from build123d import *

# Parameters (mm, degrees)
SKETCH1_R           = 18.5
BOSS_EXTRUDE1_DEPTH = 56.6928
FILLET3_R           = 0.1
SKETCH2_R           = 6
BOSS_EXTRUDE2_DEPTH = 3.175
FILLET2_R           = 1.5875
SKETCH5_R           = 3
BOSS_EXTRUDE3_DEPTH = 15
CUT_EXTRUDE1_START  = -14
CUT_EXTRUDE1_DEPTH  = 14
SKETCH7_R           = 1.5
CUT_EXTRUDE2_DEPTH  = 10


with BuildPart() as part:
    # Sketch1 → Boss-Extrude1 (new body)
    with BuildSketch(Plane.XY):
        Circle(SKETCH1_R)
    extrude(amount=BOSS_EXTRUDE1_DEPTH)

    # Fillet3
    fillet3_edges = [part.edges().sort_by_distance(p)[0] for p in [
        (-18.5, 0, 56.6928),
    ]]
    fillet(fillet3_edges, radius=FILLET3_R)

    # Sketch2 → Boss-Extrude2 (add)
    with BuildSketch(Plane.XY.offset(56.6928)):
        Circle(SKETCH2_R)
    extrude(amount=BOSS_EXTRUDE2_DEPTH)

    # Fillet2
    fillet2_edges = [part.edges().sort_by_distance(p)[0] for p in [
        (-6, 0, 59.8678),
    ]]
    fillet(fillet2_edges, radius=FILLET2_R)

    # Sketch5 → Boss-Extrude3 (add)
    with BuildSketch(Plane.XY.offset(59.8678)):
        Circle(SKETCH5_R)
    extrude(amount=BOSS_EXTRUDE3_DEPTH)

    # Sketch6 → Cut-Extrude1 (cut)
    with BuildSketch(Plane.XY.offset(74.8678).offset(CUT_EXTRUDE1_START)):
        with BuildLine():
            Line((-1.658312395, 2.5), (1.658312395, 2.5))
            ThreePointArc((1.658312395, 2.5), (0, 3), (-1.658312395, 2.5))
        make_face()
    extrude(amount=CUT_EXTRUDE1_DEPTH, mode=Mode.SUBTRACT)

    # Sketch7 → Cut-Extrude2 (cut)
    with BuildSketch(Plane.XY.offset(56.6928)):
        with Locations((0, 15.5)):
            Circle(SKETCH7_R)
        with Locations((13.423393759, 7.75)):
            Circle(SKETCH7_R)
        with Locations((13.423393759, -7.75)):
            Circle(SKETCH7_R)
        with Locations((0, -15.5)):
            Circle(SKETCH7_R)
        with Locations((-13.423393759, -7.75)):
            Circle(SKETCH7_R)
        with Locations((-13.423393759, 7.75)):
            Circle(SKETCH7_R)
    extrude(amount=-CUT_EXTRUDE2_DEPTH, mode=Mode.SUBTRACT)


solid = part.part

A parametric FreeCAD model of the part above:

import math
import FreeCAD as App
import Part
import Sketcher
from FreeCAD import Vector
Q = App.Units.Quantity


def edges_at(feature, points):
    """Names of the edges that pass closest to the given points."""
    edges = feature.Shape.Edges
    near = lambda p: min(range(len(edges)), key=lambda i: edges[i].distToShape(Part.Vertex(*p))[0])
    return sorted({f"Edge{near(p) + 1}" for p in points})

doc = App.newDocument("Part")
body = doc.addObject("PartDesign::Body", "Body")

sketch1 = body.newObject("Sketcher::SketchObject", "Sketch")
sketch1.AttachmentSupport = (doc.getObject("XY_Plane"), [""])
sketch1.MapMode = "FlatFace"
sketch1.addGeometry(Part.Circle(Vector(0, 0, 0), Vector(0, 0, 1), 18.5), False)
sketch1.addConstraint(Sketcher.Constraint("Coincident", 0, 3, -1, 1))
sketch1.addConstraint(Sketcher.Constraint("Diameter", 0, Q("37 mm")))
pad1 = body.newObject("PartDesign::Pad", "Pad")
pad1.Profile = sketch1
pad1.Length = 56.6928
doc.recompute()

fillet = body.newObject("PartDesign::Fillet", "Fillet")
fillet.Base = (pad1, edges_at(pad1, [(-18.5, 0, 56.693)]))
fillet.Radius = 0.1

sketch2 = body.newObject("Sketcher::SketchObject", "Sketch001")
sketch2.AttachmentSupport = (doc.getObject("XY_Plane"), [""])
sketch2.MapMode = "FlatFace"
sketch2.AttachmentOffset = App.Placement(Vector(0, 0, 56.6928), App.Rotation())
sketch2.addGeometry(Part.Circle(Vector(0, 0, 0), Vector(0, 0, 1), 6), False)
sketch2.addConstraint(Sketcher.Constraint("Coincident", 0, 3, -1, 1))
sketch2.addConstraint(Sketcher.Constraint("Diameter", 0, Q("12 mm")))
pad2 = body.newObject("PartDesign::Pad", "Pad001")
pad2.Profile = sketch2
pad2.Length = 3.175
doc.recompute()

fillet2 = body.newObject("PartDesign::Fillet", "Fillet001")
fillet2.Base = (pad2, edges_at(pad2, [(-6, 0, 59.868)]))
fillet2.Radius = 1.5875

sketch3 = body.newObject("Sketcher::SketchObject", "Sketch002")
sketch3.AttachmentSupport = (doc.getObject("XY_Plane"), [""])
sketch3.MapMode = "FlatFace"
sketch3.AttachmentOffset = App.Placement(Vector(0, 0, 59.8678), App.Rotation())
sketch3.addGeometry(Part.Circle(Vector(0, 0, 0), Vector(0, 0, 1), 3), False)
sketch3.addConstraint(Sketcher.Constraint("Coincident", 0, 3, -1, 1))
sketch3.addConstraint(Sketcher.Constraint("Diameter", 0, Q("6 mm")))
pad3 = body.newObject("PartDesign::Pad", "Pad002")
pad3.Profile = sketch3
pad3.Length = 15

sketch4 = body.newObject("Sketcher::SketchObject", "Sketch003")
sketch4.AttachmentSupport = (doc.getObject("XY_Plane"), [""])
sketch4.MapMode = "FlatFace"
sketch4.AttachmentOffset = App.Placement(Vector(0, 0, 60.8678), App.Rotation())
sketch4.addGeometry(Part.LineSegment(Vector(-1.658312, 2.5, 0), Vector(1.658312, 2.5, 0)), False)
sketch4.addGeometry(Part.ArcOfCircle(Part.Circle(Vector(0, 0, 0), Vector(0, 0, 1), 3), math.radians(56.44269), math.radians(123.55731)), False)
sketch4.addConstraint(Sketcher.Constraint("Coincident", 0, 1, 1, 2))
sketch4.addConstraint(Sketcher.Constraint("Coincident", 1, 1, 0, 2))
sketch4.addConstraint(Sketcher.Constraint("Horizontal", 0))
sketch4.addConstraint(Sketcher.Constraint("Coincident", 1, 3, -1, 1))
sketch4.addConstraint(Sketcher.Constraint("Radius", 1, Q("3 mm")))
sketch4.addConstraint(Sketcher.Constraint("DistanceY", -1, 1, 0, 1, Q("2.5 mm")))
pocket1 = body.newObject("PartDesign::Pocket", "Pocket")
pocket1.Profile = sketch4
pocket1.Length = 14
pocket1.Reversed = True

sketch5 = body.newObject("Sketcher::SketchObject", "Sketch004")
sketch5.AttachmentSupport = (doc.getObject("XY_Plane"), [""])
sketch5.MapMode = "FlatFace"
sketch5.AttachmentOffset = App.Placement(Vector(0, 0, 56.6928), App.Rotation())
sketch5.addGeometry(Part.Circle(Vector(0, 15.5, 0), Vector(0, 0, 1), 1.5), False)
sketch5.addGeometry(Part.Circle(Vector(13.423394, 7.75, 0), Vector(0, 0, 1), 1.5), False)
sketch5.addGeometry(Part.Circle(Vector(13.423394, -7.75, 0), Vector(0, 0, 1), 1.5), False)
sketch5.addGeometry(Part.Circle(Vector(0, -15.5, 0), Vector(0, 0, 1), 1.5), False)
sketch5.addGeometry(Part.Circle(Vector(-13.423394, -7.75, 0), Vector(0, 0, 1), 1.5), False)
sketch5.addGeometry(Part.Circle(Vector(-13.423394, 7.75, 0), Vector(0, 0, 1), 1.5), False)
sketch5.addConstraint(Sketcher.Constraint("Equal", 0, 1))
sketch5.addConstraint(Sketcher.Constraint("Equal", 1, 2))
sketch5.addConstraint(Sketcher.Constraint("Equal", 2, 3))
sketch5.addConstraint(Sketcher.Constraint("Equal", 3, 4))
sketch5.addConstraint(Sketcher.Constraint("Equal", 4, 5))
sketch5.addConstraint(Sketcher.Constraint("Symmetric", 0, 3, 3, 3, -1, 1))
sketch5.addConstraint(Sketcher.Constraint("Symmetric", 1, 3, 4, 3, -1, 1))
sketch5.addConstraint(Sketcher.Constraint("Symmetric", 2, 3, 5, 3, -1, 1))
sketch5.addConstraint(Sketcher.Constraint("Symmetric", 2, 3, 4, 3, -2))
sketch5.addConstraint(Sketcher.Constraint("PointOnObject", 0, 3, -2))
sketch5.addConstraint(Sketcher.Constraint("Diameter", 0, Q("3 mm")))
sketch5.addConstraint(Sketcher.Constraint("DistanceY", 3, 3, 0, 3, Q("31 mm")))
sketch5.addConstraint(Sketcher.Constraint("DistanceY", 2, 3, 1, 3, Q("15.5 mm")))
sketch5.addConstraint(Sketcher.Constraint("DistanceX", -1, 1, 1, 3, Q("13.423394 mm")))
pocket2 = body.newObject("PartDesign::Pocket", "Pocket001")
pocket2.Profile = sketch5
pocket2.Length = 10

doc.recompute()
